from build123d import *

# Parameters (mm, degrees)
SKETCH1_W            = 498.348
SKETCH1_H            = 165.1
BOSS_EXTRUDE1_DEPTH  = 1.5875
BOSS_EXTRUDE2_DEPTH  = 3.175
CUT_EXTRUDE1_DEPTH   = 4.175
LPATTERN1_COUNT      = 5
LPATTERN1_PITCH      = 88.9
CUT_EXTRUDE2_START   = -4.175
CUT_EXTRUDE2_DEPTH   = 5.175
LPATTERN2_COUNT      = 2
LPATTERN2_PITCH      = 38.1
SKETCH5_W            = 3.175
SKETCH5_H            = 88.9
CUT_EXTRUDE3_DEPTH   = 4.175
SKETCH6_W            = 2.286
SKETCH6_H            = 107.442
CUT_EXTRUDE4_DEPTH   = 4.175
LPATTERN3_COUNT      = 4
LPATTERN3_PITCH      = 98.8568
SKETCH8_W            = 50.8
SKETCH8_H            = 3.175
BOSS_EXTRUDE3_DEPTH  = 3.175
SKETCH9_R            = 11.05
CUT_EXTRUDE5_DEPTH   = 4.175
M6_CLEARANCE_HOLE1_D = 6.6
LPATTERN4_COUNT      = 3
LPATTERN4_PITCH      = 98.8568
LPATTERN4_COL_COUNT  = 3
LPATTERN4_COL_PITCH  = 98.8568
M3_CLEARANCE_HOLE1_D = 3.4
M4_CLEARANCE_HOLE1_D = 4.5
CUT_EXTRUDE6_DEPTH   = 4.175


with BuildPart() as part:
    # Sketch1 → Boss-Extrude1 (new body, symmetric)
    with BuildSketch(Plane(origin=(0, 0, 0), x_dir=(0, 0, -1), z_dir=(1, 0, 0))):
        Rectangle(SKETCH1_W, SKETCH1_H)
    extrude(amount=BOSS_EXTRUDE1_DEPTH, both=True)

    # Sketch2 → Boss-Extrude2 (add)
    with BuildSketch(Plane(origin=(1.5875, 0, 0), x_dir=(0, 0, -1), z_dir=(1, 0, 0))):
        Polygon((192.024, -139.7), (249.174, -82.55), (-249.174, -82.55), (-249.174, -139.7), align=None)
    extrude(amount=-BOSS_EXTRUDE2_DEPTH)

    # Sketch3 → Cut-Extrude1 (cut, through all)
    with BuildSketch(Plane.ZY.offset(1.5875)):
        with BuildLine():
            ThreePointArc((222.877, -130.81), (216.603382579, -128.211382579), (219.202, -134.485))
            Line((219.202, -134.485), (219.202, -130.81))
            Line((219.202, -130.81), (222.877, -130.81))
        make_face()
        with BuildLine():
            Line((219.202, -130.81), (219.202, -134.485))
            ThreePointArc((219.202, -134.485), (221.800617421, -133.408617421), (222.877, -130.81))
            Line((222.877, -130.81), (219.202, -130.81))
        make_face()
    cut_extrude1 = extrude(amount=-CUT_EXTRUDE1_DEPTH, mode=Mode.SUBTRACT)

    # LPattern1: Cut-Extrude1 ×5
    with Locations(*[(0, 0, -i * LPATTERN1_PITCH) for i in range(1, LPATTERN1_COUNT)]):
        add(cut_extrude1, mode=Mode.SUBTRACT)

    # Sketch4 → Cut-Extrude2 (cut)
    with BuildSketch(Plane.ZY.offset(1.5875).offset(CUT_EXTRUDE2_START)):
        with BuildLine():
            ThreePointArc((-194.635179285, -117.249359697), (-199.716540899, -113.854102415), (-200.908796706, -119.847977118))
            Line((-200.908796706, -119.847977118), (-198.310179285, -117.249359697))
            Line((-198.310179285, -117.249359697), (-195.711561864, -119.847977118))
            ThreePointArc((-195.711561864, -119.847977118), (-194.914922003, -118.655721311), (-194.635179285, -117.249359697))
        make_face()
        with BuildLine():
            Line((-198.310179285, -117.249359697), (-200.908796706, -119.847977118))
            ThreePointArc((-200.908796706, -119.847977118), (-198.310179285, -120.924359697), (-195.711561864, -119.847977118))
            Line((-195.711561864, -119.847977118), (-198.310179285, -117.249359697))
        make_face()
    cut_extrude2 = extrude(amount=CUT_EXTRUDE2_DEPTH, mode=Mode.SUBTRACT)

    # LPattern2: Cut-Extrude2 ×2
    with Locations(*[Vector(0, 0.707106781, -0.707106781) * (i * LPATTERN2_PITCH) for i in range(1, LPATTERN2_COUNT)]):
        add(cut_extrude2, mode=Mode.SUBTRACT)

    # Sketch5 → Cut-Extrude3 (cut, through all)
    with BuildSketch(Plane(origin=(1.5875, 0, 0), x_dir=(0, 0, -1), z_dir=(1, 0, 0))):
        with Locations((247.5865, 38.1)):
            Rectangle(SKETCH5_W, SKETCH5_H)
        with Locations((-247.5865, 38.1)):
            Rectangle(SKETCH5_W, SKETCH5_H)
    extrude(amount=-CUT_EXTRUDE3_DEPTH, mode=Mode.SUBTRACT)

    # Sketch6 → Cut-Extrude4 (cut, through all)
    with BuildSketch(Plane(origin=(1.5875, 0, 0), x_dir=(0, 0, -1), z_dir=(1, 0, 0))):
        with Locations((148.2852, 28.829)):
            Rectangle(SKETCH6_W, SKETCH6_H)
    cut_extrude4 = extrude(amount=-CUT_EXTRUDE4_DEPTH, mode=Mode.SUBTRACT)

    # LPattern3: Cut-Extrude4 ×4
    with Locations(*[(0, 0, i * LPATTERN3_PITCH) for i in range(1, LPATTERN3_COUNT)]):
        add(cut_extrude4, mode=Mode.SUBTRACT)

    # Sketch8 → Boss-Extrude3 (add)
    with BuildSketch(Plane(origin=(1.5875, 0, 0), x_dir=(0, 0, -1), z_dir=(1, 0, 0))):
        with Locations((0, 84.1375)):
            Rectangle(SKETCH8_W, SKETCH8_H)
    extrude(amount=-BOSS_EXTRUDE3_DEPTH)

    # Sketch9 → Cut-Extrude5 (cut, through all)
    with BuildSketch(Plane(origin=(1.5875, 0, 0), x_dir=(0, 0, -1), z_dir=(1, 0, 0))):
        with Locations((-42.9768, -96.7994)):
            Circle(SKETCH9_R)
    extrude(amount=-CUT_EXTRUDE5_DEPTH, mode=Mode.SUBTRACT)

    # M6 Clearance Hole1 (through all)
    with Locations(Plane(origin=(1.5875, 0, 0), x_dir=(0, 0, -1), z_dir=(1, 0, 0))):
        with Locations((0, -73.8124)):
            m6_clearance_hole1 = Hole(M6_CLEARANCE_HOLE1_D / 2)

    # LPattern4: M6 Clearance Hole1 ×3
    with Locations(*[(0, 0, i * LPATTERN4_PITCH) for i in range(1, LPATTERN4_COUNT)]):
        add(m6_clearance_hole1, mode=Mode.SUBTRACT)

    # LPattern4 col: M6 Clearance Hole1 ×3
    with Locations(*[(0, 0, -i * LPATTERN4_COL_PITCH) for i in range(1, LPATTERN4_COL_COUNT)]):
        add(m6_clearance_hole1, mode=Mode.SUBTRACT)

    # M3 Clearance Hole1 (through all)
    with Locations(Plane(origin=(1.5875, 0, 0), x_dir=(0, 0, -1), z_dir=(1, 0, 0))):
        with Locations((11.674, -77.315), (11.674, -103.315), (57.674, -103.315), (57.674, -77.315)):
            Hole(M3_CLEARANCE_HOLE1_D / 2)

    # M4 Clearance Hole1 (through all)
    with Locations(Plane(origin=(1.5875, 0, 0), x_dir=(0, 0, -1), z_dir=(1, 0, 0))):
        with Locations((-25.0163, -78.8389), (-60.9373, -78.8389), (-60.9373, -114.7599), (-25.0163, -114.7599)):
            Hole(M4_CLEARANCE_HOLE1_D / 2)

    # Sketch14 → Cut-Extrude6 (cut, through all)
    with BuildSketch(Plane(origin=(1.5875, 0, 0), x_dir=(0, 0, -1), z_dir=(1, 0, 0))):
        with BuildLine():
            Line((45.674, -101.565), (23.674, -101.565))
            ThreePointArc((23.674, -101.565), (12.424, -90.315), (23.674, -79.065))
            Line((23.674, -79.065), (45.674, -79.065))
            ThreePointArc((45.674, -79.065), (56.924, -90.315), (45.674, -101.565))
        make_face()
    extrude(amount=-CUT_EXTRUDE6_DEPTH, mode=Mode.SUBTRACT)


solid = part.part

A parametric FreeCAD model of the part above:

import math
import FreeCAD as App
import Part
import Sketcher
Q = App.Units.Quantity


def add_polygon(sketch, points):
    """Adds a closed chain of lines whose ends are joined by coincident constraints."""
    first, n = sketch.GeometryCount, len(points)
    for a, b in zip(points, points[1:] + points[:1]):
        sketch.addGeometry(Part.LineSegment(App.Vector(*a, 0), App.Vector(*b, 0)), False)
    for i in range(n):
        sketch.addConstraint(Sketcher.Constraint("Coincident", first + i, 2, first + (i + 1) % n, 1))

doc = App.newDocument("Part")
body = doc.addObject("PartDesign::Body", "Body")

# Sketch on YZ plane
sketch1 = doc.addObject("Sketcher::SketchObject", "Sketch")
body.addObject(sketch1)
sketch1.AttachmentSupport = (doc.YZ_Plane, [""])
sketch1.MapMode = "FlatFace"
add_polygon(sketch1, [(82.55, 249.174), (-82.55, 249.174), (-82.55, -249.174), (82.55, -249.174)])  # lines 0-3
sketch1.addConstraint([
    Sketcher.Constraint("Horizontal", 0),
    Sketcher.Constraint("Vertical", 1),
    Sketcher.Constraint("Horizontal", 2),
    Sketcher.Constraint("Vertical", 3),
    Sketcher.Constraint("Symmetric", 0, 2, 2, 2, -1, 1),
    Sketcher.Constraint("DistanceX", 0, 2, 0, 1, Q("6.5 in")),
    Sketcher.Constraint("DistanceY", 1, 2, 1, 1, Q("19.62 in")),
])
pad1 = doc.addObject("PartDesign::Pad", "Pad")
body.addObject(pad1)
pad1.Profile = sketch1
pad1.Length = Q("0.125 in")
pad1.Midplane = True

# Sketch on YZ plane
sketch2 = doc.addObject("Sketcher::SketchObject", "Sketch001")
body.addObject(sketch2)
sketch2.AttachmentSupport = (doc.YZ_Plane, [""])
sketch2.MapMode = "FlatFace"
sketch2.AttachmentOffset = App.Placement(App.Vector(0, 0, 0.0625 * 25.4), App.Rotation())
add_polygon(sketch2, [(-139.7, -192.024), (-82.55, -249.174), (-82.55, 249.174), (-139.7, 249.174)])  # lines 0-3
sketch2.addConstraint([
    Sketcher.Constraint("Vertical", 1),
    Sketcher.Constraint("Horizontal", 2),
    Sketcher.Constraint("Vertical", 3),
    Sketcher.Constraint("Angle", 0, Q("-45 deg")),
    Sketcher.Constraint("DistanceX", 2, 2, 2, 1, Q("2.25 in")),
    Sketcher.Constraint("DistanceY", 1, 1, 1, 2, Q("19.62 in")),
    Sketcher.Constraint("DistanceX", 2, 2, -1, 1, Q("5.5 in")),
    Sketcher.Constraint("DistanceY", 0, 2, -1, 1, Q("9.81 in")),
])
pad2 = doc.addObject("PartDesign::Pad", "Pad001")
body.addObject(pad2)
pad2.Profile = sketch2
pad2.Length = Q("0.125 in")
pad2.Reversed = True

# Sketch on YZ plane
sketch3 = doc.addObject("Sketcher::SketchObject", "Sketch002")
body.addObject(sketch3)
sketch3.AttachmentSupport = (doc.YZ_Plane, [""])
sketch3.MapMode = "FlatFace"
sketch3.AttachmentOffset = App.Placement(App.Vector(0, 0, -0.0625 * 25.4), App.Rotation())
sketch3.addGeometry([
    Part.ArcOfCircle(Part.Circle(App.Vector(-130.81, 219.202, 0), App.Vector(0, 0, 1), 3.675), math.radians(180), math.radians(450)),
    Part.ArcOfCircle(Part.Circle(App.Vector(-130.81, 219.202, 0), App.Vector(0, 0, 1), 3.675), math.radians(90), math.radians(180)),
], False)
sketch3.addConstraint([
    Sketcher.Constraint("Tangent", 0, 1, 1, 2),
    Sketcher.Constraint("Coincident", 1, 1, 0, 2),
    Sketcher.Constraint("Horizontal", 1, 3, 0, 1),
    Sketcher.Constraint("Vertical", 0, 3, 1, 1),
    Sketcher.Constraint("DistanceX", 0, 3, -1, 1, Q("5.15 in")),
    Sketcher.Constraint("DistanceY", -1, 1, 0, 3, Q("8.63 in")),
    Sketcher.Constraint("Radius", 0, Q("3.675 mm")),
])
pocket1 = doc.addObject("PartDesign::Pocket", "Pocket")
body.addObject(pocket1)
pocket1.Profile = sketch3
pocket1.Type = "ThroughAll"
pocket1.Reversed = True
doc.recompute()

linearpattern = doc.addObject("PartDesign::LinearPattern", "LinearPattern")
body.addObject(linearpattern)
linearpattern.Originals = [pocket1]
linearpattern.Direction = (doc.Z_Axis, [""])
linearpattern.Mode = "offset"
linearpattern.Offset = Q("3.5 in")
linearpattern.Occurrences = 5
linearpattern.Reversed = True
body.Tip = linearpattern

# Sketch on YZ plane
sketch4 = doc.addObject("Sketcher::SketchObject", "Sketch003")
body.addObject(sketch4)
sketch4.AttachmentSupport = (doc.YZ_Plane, [""])
sketch4.MapMode = "FlatFace"
sketch4.AttachmentOffset = App.Placement(App.Vector(0, 0, 2.5875), App.Rotation())
sketch4.addGeometry([
    Part.ArcOfCircle(Part.Circle(App.Vector(-117.24936, -198.310179, 0), App.Vector(0, 0, 1), 3.675), math.radians(-135), math.radians(90)),
    Part.ArcOfCircle(Part.Circle(App.Vector(-117.24936, -198.310179, 0), App.Vector(0, 0, 1), 3.675), math.radians(135), math.radians(225)),
    Part.ArcOfCircle(Part.Circle(App.Vector(-117.24936, -198.310179, 0), App.Vector(0, 0, 1), 3.675), math.radians(90), math.radians(135)),
], False)
sketch4.addConstraint([
    Sketcher.Constraint("Tangent", 0, 1, 1, 2),
    Sketcher.Constraint("Tangent", 1, 1, 2, 2),
    Sketcher.Constraint("Tangent", 2, 1, 0, 2),
    Sketcher.Constraint("Vertical", 0, 1, 1, 1),
    Sketcher.Constraint("Vertical", 1, 3, 2, 1),
    Sketcher.Constraint("Radius", 0, Q("3.675 mm")),
    Sketcher.Constraint("DistanceX", 0, 3, -1, 1, Q("117.24936 mm")),
    Sketcher.Constraint("DistanceY", 0, 3, -1, 1, Q("198.310179 mm")),
    Sketcher.Constraint("DistanceY", 1, 1, -1, 1, Q("195.711562 mm")),
])
pocket2 = doc.addObject("PartDesign::Pocket", "Pocket001")
body.addObject(pocket2)
pocket2.Profile = sketch4
pocket2.Length = 5.175
doc.recompute()

datumline = doc.addObject("PartDesign::Line", "DatumLine")
body.addObject(datumline)
datumline.Placement = App.Placement(App.Vector(0, 0, 0), App.Rotation(App.Vector(0, 0, 1), App.Vector(0, 0.707106781, -0.707106781)))
linearpattern2 = doc.addObject("PartDesign::LinearPattern", "LinearPattern001")
body.addObject(linearpattern2)
linearpattern2.Originals = [pocket2]
linearpattern2.Direction = (datumline, [""])
linearpattern2.Mode = "offset"
linearpattern2.Offset = Q("1.5 in")
linearpattern2.Occurrences = 2
body.Tip = linearpattern2

# Sketch on YZ plane
sketch5 = doc.addObject("Sketcher::SketchObject", "Sketch004")
body.addObject(sketch5)
sketch5.AttachmentSupport = (doc.YZ_Plane, [""])
sketch5.MapMode = "FlatFace"
sketch5.AttachmentOffset = App.Placement(App.Vector(0, 0, 0.0625 * 25.4), App.Rotation())
add_polygon(sketch5, [(82.55, -245.999), (-6.35, -245.999), (-6.35, -249.174), (82.55, -249.174)])  # lines 0-3
add_polygon(sketch5, [(82.55, 249.174), (-6.35, 249.174), (-6.35, 245.999), (82.55, 245.999)])  # lines 4-7
sketch5.addConstraint([
    Sketcher.Constraint("Horizontal", 0),
    Sketcher.Constraint("Vertical", 1),
    Sketcher.Constraint("Horizontal", 2),
    Sketcher.Constraint("Vertical", 3),
    Sketcher.Constraint("Horizontal", 4),
    Sketcher.Constraint("Vertical", 5),
    Sketcher.Constraint("Horizontal", 6),
    Sketcher.Constraint("Vertical", 7),
    Sketcher.Constraint("Symmetric", 1, 2, 4, 2, -1),
    Sketcher.Constraint("Symmetric", 3, 2, 6, 2, -1),
    Sketcher.Constraint("DistanceX", 0, 2, 0, 1, Q("3.5 in")),
    Sketcher.Constraint("DistanceY", 1, 2, 1, 1, Q("0.125 in")),
    Sketcher.Constraint("DistanceX", 0, 2, -1, 1, Q("0.25 in")),
    Sketcher.Constraint("DistanceY", 1, 2, -1, 1, Q("9.81 in")),
])
pocket3 = doc.addObject("PartDesign::Pocket", "Pocket002")
body.addObject(pocket3)
pocket3.Profile = sketch5
pocket3.Type = "ThroughAll"

# Sketch on YZ plane
sketch6 = doc.addObject("Sketcher::SketchObject", "Sketch005")
body.addObject(sketch6)
sketch6.AttachmentSupport = (doc.YZ_Plane, [""])
sketch6.MapMode = "FlatFace"
sketch6.AttachmentOffset = App.Placement(App.Vector(0, 0, 0.0625 * 25.4), App.Rotation())
add_polygon(sketch6, [(82.55, -147.1422), (-24.892, -147.1422), (-24.892, -149.4282), (82.55, -149.4282)])  # lines 0-3
sketch6.addConstraint([
    Sketcher.Constraint("Horizontal", 0),
    Sketcher.Constraint("Vertical", 1),
    Sketcher.Constraint("Horizontal", 2),
    Sketcher.Constraint("Vertical", 3),
    Sketcher.Constraint("DistanceX", 0, 2, 0, 1, Q("4.23 in")),
    Sketcher.Constraint("DistanceY", 1, 2, 1, 1, Q("0.09 in")),
    Sketcher.Constraint("DistanceX", 0, 2, -1, 1, Q("0.98 in")),
    Sketcher.Constraint("DistanceY", 0, 2, -1, 1, Q("5.793 in")),
])
pocket4 = doc.addObject("PartDesign::Pocket", "Pocket003")
body.addObject(pocket4)
pocket4.Profile = sketch6
pocket4.Type = "ThroughAll"
doc.recompute()

linearpattern3 = doc.addObject("PartDesign::LinearPattern", "LinearPattern002")
body.addObject(linearpattern3)
linearpattern3.Originals = [pocket4]
linearpattern3.Direction = (doc.Z_Axis, [""])
linearpattern3.Mode = "offset"
linearpattern3.Offset = Q("3.892 in")
linearpattern3.Occurrences = 4
body.Tip = linearpattern3

# Sketch on YZ plane
sketch7 = doc.addObject("Sketcher::SketchObject", "Sketch006")
body.addObject(sketch7)
sketch7.AttachmentSupport = (doc.YZ_Plane, [""])
sketch7.MapMode = "FlatFace"
sketch7.AttachmentOffset = App.Placement(App.Vector(0, 0, 0.0625 * 25.4), App.Rotation())
add_polygon(sketch7, [(85.725, 25.4), (82.55, 25.4), (82.55, -25.4), (85.725, -25.4)])  # lines 0-3
sketch7.addConstraint([
    Sketcher.Constraint("Horizontal", 0),
    Sketcher.Constraint("Vertical", 1),
    Sketcher.Constraint("Horizontal", 2),
    Sketcher.Constraint("Vertical", 3),
    Sketcher.Constraint("DistanceY", 1, 2, 1, 1, Q("2 in")),
    Sketcher.Constraint("DistanceY", -1, 1, 0, 2, Q("1 in")),
    Sketcher.Constraint("DistanceX", 0, 2, 0, 1, Q("0.125 in")),
    Sketcher.Constraint("DistanceX", -1, 1, 0, 2, Q("3.25 in")),
])
pad3 = doc.addObject("PartDesign::Pad", "Pad002")
body.addObject(pad3)
pad3.Profile = sketch7
pad3.Length = Q("0.125 in")
pad3.Reversed = True

# Sketch on YZ plane
sketch8 = doc.addObject("Sketcher::SketchObject", "Sketch007")
body.addObject(sketch8)
sketch8.AttachmentSupport = (doc.YZ_Plane, [""])
sketch8.MapMode = "FlatFace"
sketch8.AttachmentOffset = App.Placement(App.Vector(0, 0, 0.0625 * 25.4), App.Rotation())
sketch8.addGeometry(Part.Circle(App.Vector(-96.7994, 42.9768, 0), App.Vector(0, 0, 1), 11.05), False)
sketch8.addConstraint([
    Sketcher.Constraint("Diameter", 0, Q("22.1 mm")),
    Sketcher.Constraint("DistanceX", 0, 3, -1, 1, Q("3.811 in")),
    Sketcher.Constraint("DistanceY", -1, 1, 0, 3, Q("1.692 in")),
])
pocket5 = doc.addObject("PartDesign::Pocket", "Pocket004")
body.addObject(pocket5)
pocket5.Profile = sketch8
pocket5.Type = "ThroughAll"

# Sketch on YZ plane
sketch9 = doc.addObject("Sketcher::SketchObject", "Sketch008")
body.addObject(sketch9)
sketch9.AttachmentSupport = (doc.YZ_Plane, [""])
sketch9.MapMode = "FlatFace"
sketch9.AttachmentOffset = App.Placement(App.Vector(0, 0, 0.0625 * 25.4), App.Rotation())
sketch9.addGeometry(Part.Circle(App.Vector(-73.8124, 0, 0), App.Vector(0, 0, 1), 3.3), False)
sketch9.addConstraint([
    Sketcher.Constraint("PointOnObject", 0, 3, -1),
    Sketcher.Constraint("Diameter", 0, Q("6.6 mm")),
    Sketcher.Constraint("DistanceX", 0, 3, -1, 1, Q("2.906 in")),
])
doc.recompute()
hole = doc.addObject("PartDesign::Hole", "Hole")
body.addObject(hole)
hole.Profile = sketch9
hole.ThreadType = "None"
hole.Diameter = 6.6
hole.DepthType = "ThroughAll"
doc.recompute()

linearpattern4 = doc.addObject("PartDesign::LinearPattern", "LinearPattern003")
body.addObject(linearpattern4)
linearpattern4.Originals = [hole]
linearpattern4.Direction = (doc.Z_Axis, [""])
linearpattern4.Mode = "offset"
linearpattern4.Offset = Q("3.892 in")
linearpattern4.Occurrences = 3
body.Tip = linearpattern4
doc.recompute()

linearpattern5 = doc.addObject("PartDesign::LinearPattern", "LinearPattern004")
body.addObject(linearpattern5)
linearpattern5.Originals = [hole]
linearpattern5.Direction = (doc.Z_Axis, [""])
linearpattern5.Mode = "offset"
linearpattern5.Offset = Q("3.892 in")
linearpattern5.Occurrences = 3
linearpattern5.Reversed = True
body.Tip = linearpattern5

# Sketch on YZ plane
sketch10 = doc.addObject("Sketcher::SketchObject", "Sketch009")
body.addObject(sketch10)
sketch10.AttachmentSupport = (doc.YZ_Plane, [""])
sketch10.MapMode = "FlatFace"
sketch10.AttachmentOffset = App.Placement(App.Vector(0, 0, 0.0625 * 25.4), App.Rotation())
sketch10.addGeometry([
    Part.Circle(App.Vector(-77.315, -11.674, 0), App.Vector(0, 0, 1), 1.7),
    Part.Circle(App.Vector(-103.315, -11.674, 0), App.Vector(0, 0, 1), 1.7),
    Part.Circle(App.Vector(-103.315, -57.674, 0), App.Vector(0, 0, 1), 1.7),
    Part.Circle(App.Vector(-77.315, -57.674, 0), App.Vector(0, 0, 1), 1.7),
], False)
sketch10.addConstraint([
    Sketcher.Constraint("Equal", 0, 1),
    Sketcher.Constraint("Equal", 1, 2),
    Sketcher.Constraint("Equal", 2, 3),
    Sketcher.Constraint("Horizontal", 0, 3, 1, 3),
    Sketcher.Constraint("Horizontal", 2, 3, 3, 3),
    Sketcher.Constraint("Vertical", 1, 3, 2, 3),
    Sketcher.Constraint("Vertical", 0, 3, 3, 3),
    Sketcher.Constraint("Diameter", 0, Q("3.4 mm")),
    Sketcher.Constraint("DistanceX", 0, 3, -1, 1, Q("77.315 mm")),
    Sketcher.Constraint("DistanceY", 0, 3, -1, 1, Q("11.674 mm")),
    Sketcher.Constraint("DistanceX", 1, 3, -1, 1, Q("103.315 mm")),
    Sketcher.Constraint("DistanceY", 2, 3, -1, 1, Q("57.674 mm")),
])
doc.recompute()
hole2 = doc.addObject("PartDesign::Hole", "Hole001")
body.addObject(hole2)
hole2.Profile = sketch10
hole2.ThreadType = "None"
hole2.Diameter = 3.4
hole2.DepthType = "ThroughAll"

# Sketch on YZ plane
sketch11 = doc.addObject("Sketcher::SketchObject", "Sketch010")
body.addObject(sketch11)
sketch11.AttachmentSupport = (doc.YZ_Plane, [""])
sketch11.MapMode = "FlatFace"
sketch11.AttachmentOffset = App.Placement(App.Vector(0, 0, 0.0625 * 25.4), App.Rotation())
sketch11.addGeometry([
    Part.Circle(App.Vector(-78.8389, 25.0163, 0), App.Vector(0, 0, 1), 2.25),
    Part.Circle(App.Vector(-78.8389, 60.9373, 0), App.Vector(0, 0, 1), 2.25),
    Part.Circle(App.Vector(-114.7599, 60.9373, 0), App.Vector(0, 0, 1), 2.25),
    Part.Circle(App.Vector(-114.7599, 25.0163, 0), App.Vector(0, 0, 1), 2.25),
], False)
sketch11.addConstraint([
    Sketcher.Constraint("Equal", 0, 1),
    Sketcher.Constraint("Equal", 1, 2),
    Sketcher.Constraint("Equal", 2, 3),
    Sketcher.Constraint("Horizontal", 1, 3, 2, 3),
    Sketcher.Constraint("Horizontal", 0, 3, 3, 3),
    Sketcher.Constraint("Vertical", 0, 3, 1, 3),
    Sketcher.Constraint("Vertical", 2, 3, 3, 3),
    Sketcher.Constraint("Diameter", 0, Q("4.5 mm")),
    Sketcher.Constraint("DistanceX", 0, 3, -1, 1, Q("78.8389 mm")),
    Sketcher.Constraint("DistanceY", -1, 1, 0, 3, Q("25.0163 mm")),
    Sketcher.Constraint("DistanceY", -1, 1, 1, 3, Q("60.9373 mm")),
    Sketcher.Constraint("DistanceX", 2, 3, -1, 1, Q("114.7599 mm")),
])
doc.recompute()
hole3 = doc.addObject("PartDesign::Hole", "Hole002")
body.addObject(hole3)
hole3.Profile = sketch11
hole3.ThreadType = "None"
hole3.Diameter = 4.5
hole3.DepthType = "ThroughAll"

# Sketch on YZ plane
sketch12 = doc.addObject("Sketcher::SketchObject", "Sketch011")
body.addObject(sketch12)
sketch12.AttachmentSupport = (doc.YZ_Plane, [""])
sketch12.MapMode = "FlatFace"
sketch12.AttachmentOffset = App.Placement(App.Vector(0, 0, 0.0625 * 25.4), App.Rotation())
sketch12.addGeometry([
    Part.LineSegment(App.Vector(-101.565, -23.674, 0), App.Vector(-101.565, -45.674, 0)),
    Part.ArcOfCircle(Part.Circle(App.Vector(-90.315, -45.674, 0), App.Vector(0, 0, 1), 11.25), math.radians(180), math.radians(360)),
    Part.LineSegment(App.Vector(-79.065, -45.674, 0), App.Vector(-79.065, -23.674, 0)),
    Part.ArcOfCircle(Part.Circle(App.Vector(-90.315, -23.674, 0), App.Vector(0, 0, 1), 11.25), math.radians(0), math.radians(180)),
], False)
sketch12.addConstraint([
    Sketcher.Constraint("Tangent", 0, 2, 1, 1),
    Sketcher.Constraint("Tangent", 1, 2, 2, 1),
    Sketcher.Constraint("Tangent", 2, 2, 3, 1),
    Sketcher.Constraint("Tangent", 3, 2, 0, 1),
    Sketcher.Constraint("Vertical", 0),
    Sketcher.Constraint("Vertical", 2),
    Sketcher.Constraint("Radius", 1, Q("11.25 mm")),
    Sketcher.Constraint("DistanceY", 0, 2, 0, 1, Q("22 mm")),
    Sketcher.Constraint("DistanceX", 1, 3, -1, 1, Q("90.315 mm")),
    Sketcher.Constraint("DistanceY", 1, 3, -1, 1, Q("45.674 mm")),
])
pocket6 = doc.addObject("PartDesign::Pocket", "Pocket005")
body.addObject(pocket6)
pocket6.Profile = sketch12
pocket6.Type = "ThroughAll"

doc.recompute()
